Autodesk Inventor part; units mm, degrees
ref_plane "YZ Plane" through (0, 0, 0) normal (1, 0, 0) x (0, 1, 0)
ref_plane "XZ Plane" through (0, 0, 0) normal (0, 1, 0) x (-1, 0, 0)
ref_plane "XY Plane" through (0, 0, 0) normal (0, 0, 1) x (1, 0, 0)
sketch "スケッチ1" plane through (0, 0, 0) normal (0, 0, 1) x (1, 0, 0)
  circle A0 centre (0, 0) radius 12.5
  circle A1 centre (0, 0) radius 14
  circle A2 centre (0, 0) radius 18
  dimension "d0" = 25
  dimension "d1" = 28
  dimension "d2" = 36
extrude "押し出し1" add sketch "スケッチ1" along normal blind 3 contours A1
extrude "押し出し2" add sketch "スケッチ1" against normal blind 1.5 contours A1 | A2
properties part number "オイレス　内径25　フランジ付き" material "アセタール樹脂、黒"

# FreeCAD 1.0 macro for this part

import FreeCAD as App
import Part
import Sketcher

V = App.Vector
Q = App.Units.Quantity

doc = App.newDocument("Part")
body = doc.addObject("PartDesign::Body", "Body")

# Sketch on XY plane
sketch1 = doc.addObject("Sketcher::SketchObject", "Sketch")
body.addObject(sketch1)
sketch1.AttachmentSupport = (doc.XY_Plane, [""])
sketch1.MapMode = "FlatFace"
sketch1.addGeometry([
    Part.Circle(V(0, 0, 0), V(0, 0, 1), 14),
    Part.Circle(V(0, 0, 0), V(0, 0, 1), 12),
], False)
sketch1.addConstraint([
    Sketcher.Constraint("Coincident", 0, 3, -1, 1),
    Sketcher.Constraint("Coincident", 1, 3, -1, 1),
    Sketcher.Constraint("Diameter", 0, Q("28 mm")),
    Sketcher.Constraint("Diameter", 1, Q("25 mm")),
])
pad1 = doc.addObject("PartDesign::Pad", "Pad")
body.addObject(pad1)
pad1.Profile = sketch1
pad1.Length = 3

# Sketch on XY plane
sketch2 = doc.addObject("Sketcher::SketchObject", "Sketch001")
body.addObject(sketch2)
sketch2.AttachmentSupport = (doc.XY_Plane, [""])
sketch2.MapMode = "FlatFace"
sketch2.addGeometry([
    Part.Circle(V(0, 0, 0), V(0, 0, 1), 18),
    Part.Circle(V(0, 0, 0), V(0, 0, 1), 12),
], False)
sketch2.addConstraint([
    Sketcher.Constraint("Coincident", 0, 3, -1, 1),
    Sketcher.Constraint("Coincident", 1, 3, -1, 1),
    Sketcher.Constraint("Diameter", 0, Q("36 mm")),
    Sketcher.Constraint("Diameter", 1, Q("25 mm")),
])
pad2 = doc.addObject("PartDesign::Pad", "Pad001")
body.addObject(pad2)
pad2.Profile = sketch2
pad2.Length = 1.5
pad2.Reversed = True

doc.recompute()
